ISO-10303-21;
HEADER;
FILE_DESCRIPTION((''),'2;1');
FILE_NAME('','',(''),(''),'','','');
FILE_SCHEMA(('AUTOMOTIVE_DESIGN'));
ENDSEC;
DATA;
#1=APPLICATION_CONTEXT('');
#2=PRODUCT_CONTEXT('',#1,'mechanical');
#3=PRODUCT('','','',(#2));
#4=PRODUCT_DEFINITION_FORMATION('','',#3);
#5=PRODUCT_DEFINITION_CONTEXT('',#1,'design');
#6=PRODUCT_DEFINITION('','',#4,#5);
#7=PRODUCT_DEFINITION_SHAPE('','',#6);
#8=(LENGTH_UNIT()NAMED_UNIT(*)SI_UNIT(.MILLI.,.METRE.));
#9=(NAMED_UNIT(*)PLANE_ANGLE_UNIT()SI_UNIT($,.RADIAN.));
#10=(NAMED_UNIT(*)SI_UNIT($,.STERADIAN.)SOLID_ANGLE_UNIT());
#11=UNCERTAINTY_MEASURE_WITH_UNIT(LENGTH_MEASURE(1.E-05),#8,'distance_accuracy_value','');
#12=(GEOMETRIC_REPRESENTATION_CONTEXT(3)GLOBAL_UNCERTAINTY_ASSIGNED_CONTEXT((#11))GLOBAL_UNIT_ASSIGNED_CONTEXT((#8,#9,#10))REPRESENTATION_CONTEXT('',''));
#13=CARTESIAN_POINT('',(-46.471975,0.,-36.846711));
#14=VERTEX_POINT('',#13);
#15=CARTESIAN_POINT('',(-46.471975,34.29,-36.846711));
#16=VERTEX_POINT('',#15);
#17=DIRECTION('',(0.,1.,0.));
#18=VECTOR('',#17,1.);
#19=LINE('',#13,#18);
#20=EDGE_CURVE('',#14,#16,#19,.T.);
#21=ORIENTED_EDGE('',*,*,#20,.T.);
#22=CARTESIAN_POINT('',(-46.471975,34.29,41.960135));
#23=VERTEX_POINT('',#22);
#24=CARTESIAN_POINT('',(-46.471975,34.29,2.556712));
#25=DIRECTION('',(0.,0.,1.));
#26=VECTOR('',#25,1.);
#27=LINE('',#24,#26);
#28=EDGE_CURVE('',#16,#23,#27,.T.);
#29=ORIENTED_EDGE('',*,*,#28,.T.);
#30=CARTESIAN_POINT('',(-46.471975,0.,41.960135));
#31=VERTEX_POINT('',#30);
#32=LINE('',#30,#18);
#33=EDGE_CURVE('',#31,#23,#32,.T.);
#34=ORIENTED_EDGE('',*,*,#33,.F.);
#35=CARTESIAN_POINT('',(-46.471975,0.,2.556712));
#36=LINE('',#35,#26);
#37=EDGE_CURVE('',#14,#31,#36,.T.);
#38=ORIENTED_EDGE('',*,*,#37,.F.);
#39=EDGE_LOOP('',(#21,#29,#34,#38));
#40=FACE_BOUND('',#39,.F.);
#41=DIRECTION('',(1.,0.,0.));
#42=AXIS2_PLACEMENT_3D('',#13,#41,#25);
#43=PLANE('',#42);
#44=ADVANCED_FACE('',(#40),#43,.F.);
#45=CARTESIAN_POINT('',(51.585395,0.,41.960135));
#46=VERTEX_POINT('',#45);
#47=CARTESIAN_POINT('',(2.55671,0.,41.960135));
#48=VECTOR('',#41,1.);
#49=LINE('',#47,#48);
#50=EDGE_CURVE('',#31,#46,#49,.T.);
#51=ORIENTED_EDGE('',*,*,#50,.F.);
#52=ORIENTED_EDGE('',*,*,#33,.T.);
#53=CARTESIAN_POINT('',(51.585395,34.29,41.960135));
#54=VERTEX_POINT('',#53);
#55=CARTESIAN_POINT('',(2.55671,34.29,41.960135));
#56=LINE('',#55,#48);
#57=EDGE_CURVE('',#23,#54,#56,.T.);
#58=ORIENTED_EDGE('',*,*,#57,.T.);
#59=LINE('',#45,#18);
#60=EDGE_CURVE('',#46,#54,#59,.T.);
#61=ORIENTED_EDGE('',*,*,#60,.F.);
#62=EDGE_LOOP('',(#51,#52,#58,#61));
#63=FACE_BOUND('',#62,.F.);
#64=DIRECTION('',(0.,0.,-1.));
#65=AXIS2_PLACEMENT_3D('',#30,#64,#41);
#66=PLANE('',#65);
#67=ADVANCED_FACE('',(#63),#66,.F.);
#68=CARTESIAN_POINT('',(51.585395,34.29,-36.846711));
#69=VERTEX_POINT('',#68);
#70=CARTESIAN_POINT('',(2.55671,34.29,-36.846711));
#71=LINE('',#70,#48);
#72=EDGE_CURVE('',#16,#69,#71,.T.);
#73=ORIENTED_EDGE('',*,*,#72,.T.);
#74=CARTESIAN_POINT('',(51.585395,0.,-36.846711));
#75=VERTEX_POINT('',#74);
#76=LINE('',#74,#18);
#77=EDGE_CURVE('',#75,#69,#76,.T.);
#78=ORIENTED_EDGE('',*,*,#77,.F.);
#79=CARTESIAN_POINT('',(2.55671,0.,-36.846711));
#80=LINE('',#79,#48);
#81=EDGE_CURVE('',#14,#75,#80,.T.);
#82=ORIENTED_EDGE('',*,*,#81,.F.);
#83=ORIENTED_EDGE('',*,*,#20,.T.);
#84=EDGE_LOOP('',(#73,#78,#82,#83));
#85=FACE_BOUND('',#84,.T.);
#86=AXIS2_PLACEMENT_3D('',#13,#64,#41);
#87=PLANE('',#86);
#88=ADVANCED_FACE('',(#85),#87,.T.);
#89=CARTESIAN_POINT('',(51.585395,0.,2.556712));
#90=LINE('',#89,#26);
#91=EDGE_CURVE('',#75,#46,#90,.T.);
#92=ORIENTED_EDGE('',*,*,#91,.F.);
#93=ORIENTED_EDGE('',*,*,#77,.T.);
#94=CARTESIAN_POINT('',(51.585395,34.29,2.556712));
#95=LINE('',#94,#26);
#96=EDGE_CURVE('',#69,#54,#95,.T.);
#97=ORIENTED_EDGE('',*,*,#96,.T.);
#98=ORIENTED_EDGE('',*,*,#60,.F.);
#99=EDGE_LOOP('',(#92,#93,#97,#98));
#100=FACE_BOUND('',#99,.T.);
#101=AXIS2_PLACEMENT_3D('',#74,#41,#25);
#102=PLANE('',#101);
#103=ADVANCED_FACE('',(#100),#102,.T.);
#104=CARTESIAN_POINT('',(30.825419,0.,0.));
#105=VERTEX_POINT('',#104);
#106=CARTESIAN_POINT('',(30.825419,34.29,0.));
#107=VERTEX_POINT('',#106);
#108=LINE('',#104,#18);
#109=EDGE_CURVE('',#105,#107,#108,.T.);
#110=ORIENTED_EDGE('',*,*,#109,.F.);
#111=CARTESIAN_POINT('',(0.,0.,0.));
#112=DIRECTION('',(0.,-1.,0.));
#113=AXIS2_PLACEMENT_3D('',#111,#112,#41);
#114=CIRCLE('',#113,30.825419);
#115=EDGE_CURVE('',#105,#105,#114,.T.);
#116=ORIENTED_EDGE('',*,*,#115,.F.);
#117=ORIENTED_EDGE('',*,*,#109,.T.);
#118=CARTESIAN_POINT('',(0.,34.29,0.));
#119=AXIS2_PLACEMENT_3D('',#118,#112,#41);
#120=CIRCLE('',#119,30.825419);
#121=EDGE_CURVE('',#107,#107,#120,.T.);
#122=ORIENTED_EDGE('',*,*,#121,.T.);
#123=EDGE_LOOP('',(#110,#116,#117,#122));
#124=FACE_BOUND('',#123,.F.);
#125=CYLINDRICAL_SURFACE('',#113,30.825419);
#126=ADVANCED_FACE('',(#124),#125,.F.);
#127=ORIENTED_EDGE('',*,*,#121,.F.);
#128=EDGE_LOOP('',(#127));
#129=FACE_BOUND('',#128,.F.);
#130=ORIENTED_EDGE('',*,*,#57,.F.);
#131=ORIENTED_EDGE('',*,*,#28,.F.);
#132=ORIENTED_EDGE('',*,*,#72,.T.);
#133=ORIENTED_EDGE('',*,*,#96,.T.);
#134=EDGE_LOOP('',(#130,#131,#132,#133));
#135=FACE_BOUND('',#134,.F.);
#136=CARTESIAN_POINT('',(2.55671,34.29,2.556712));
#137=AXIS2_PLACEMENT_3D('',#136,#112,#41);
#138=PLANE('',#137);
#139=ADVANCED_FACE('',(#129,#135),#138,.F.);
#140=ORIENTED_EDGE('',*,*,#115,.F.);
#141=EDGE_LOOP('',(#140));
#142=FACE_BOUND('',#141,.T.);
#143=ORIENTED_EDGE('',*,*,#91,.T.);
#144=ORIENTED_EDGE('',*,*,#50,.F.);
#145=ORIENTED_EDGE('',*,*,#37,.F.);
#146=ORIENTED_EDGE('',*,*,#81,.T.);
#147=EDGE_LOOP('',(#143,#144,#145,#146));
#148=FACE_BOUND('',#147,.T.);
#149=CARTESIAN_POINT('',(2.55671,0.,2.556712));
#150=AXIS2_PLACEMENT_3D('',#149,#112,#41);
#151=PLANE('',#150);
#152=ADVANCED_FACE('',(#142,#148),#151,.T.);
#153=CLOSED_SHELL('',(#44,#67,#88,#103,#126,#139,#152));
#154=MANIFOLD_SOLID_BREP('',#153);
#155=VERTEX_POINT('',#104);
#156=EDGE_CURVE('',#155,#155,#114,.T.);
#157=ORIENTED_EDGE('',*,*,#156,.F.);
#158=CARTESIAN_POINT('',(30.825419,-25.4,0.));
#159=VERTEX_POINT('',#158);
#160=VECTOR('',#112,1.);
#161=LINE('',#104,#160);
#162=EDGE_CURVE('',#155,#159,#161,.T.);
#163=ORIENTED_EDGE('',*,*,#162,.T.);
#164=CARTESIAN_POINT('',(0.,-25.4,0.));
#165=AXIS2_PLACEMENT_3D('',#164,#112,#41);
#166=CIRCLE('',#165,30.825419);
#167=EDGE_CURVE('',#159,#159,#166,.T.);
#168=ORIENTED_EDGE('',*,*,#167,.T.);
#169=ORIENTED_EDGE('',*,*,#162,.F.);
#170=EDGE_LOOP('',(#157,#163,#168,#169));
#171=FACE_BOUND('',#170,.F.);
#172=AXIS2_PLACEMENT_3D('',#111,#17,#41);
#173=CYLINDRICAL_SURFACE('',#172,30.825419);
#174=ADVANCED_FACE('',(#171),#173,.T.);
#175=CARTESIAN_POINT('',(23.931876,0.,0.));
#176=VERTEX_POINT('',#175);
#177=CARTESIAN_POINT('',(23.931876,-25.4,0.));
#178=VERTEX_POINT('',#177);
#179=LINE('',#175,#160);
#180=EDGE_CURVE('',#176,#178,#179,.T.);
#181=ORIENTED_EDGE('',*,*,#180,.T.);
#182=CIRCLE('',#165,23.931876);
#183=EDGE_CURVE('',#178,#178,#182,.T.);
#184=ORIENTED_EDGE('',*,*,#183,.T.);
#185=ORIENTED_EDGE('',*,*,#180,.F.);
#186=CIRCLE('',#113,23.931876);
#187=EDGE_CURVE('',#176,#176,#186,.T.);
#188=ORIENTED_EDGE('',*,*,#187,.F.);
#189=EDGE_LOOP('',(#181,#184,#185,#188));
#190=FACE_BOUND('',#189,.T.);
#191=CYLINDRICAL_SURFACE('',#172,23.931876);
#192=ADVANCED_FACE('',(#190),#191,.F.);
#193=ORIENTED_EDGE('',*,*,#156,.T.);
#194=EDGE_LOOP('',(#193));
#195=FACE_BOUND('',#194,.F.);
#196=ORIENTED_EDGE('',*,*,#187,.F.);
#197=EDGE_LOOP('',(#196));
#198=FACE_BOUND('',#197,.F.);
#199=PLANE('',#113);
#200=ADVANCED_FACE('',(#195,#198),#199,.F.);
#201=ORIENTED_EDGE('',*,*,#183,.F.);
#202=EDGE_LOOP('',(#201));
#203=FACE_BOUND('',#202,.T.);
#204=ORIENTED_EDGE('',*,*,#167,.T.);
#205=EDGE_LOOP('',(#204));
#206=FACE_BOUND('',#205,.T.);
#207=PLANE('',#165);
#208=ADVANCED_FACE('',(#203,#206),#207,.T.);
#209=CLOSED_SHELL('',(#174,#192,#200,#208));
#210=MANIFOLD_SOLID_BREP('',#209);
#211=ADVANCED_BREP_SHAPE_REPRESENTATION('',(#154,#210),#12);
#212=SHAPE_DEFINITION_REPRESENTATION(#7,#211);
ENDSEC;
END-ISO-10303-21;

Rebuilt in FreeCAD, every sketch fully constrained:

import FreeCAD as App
import Part
import Sketcher

V = App.Vector
Q = App.Units.Quantity


def add_polygon(sketch, points):
    """Adds a closed chain of lines whose ends are joined by coincident constraints."""
    first, n = sketch.GeometryCount, len(points)
    for a, b in zip(points, points[1:] + points[:1]):
        sketch.addGeometry(Part.LineSegment(App.Vector(*a, 0), App.Vector(*b, 0)), False)
    for i in range(n):
        sketch.addConstraint(Sketcher.Constraint("Coincident", first + i, 2, first + (i + 1) % n, 1))

doc = App.newDocument("Part")
params = doc.addObject("Spreadsheet::Sheet", "Params")
for row, (alias, value) in enumerate([
    ("pad1_length", "1 in"),
    ("pad2_length", "1.35 in"),
], start=1):
    params.set(f"A{row}", alias)
    params.set(f"B{row}", "=" + value)
    params.setAlias(f"B{row}", alias)

body = doc.addObject("PartDesign::Body", "Body")

# Sketch on XZ plane
sketch1 = body.newObject("Sketcher::SketchObject", "Sketch")
sketch1.AttachmentSupport = (doc.getObject("XZ_Plane"), [""])
sketch1.MapMode = "FlatFace"
sketch1.addGeometry([
    Part.Circle(V(0, 0, 0), V(0, 0, 1), 30.825419),
    Part.Circle(V(0, 0, 0), V(0, 0, 1), 23.931876),
], False)
sketch1.addConstraint([
    Sketcher.Constraint("Coincident", 0, 3, -1, 1),
    Sketcher.Constraint("Coincident", 1, 3, -1, 1),
    Sketcher.Constraint("Diameter", 1, Q("47.863752 mm")),
    Sketcher.Constraint("Diameter", 0, Q("61.650838 mm")),
])
pad1 = body.newObject("PartDesign::Pad", "Pad")
pad1.Profile = sketch1
pad1.setExpression("Length", "Params.pad1_length")
body2 = doc.addObject("PartDesign::Body", "Body001")

# Sketch on XZ plane
sketch2 = body2.newObject("Sketcher::SketchObject", "Sketch001")
sketch2.AttachmentSupport = (doc.getObject("XZ_Plane001"), [""])
sketch2.MapMode = "FlatFace"
add_polygon(sketch2, [(-46.471975, 41.960135), (-46.471975, -36.846711), (51.585395, -36.846711), (51.585395, 41.960135)])  # lines 0-3
sketch2.addGeometry(Part.Circle(V(0, 0, 0), V(0, 0, 1), 30.825419), False)  # 4
sketch2.addConstraint([
    Sketcher.Constraint("Vertical", 0),
    Sketcher.Constraint("Horizontal", 1),
    Sketcher.Constraint("Vertical", 2),
    Sketcher.Constraint("Horizontal", 3),
    Sketcher.Constraint("Coincident", 4, 3, -1, 1),
    Sketcher.Constraint("Diameter", 4, Q("61.650838 mm")),
    Sketcher.Constraint("DistanceX", 1, 1, 1, 2, Q("98.057371 mm")),
    Sketcher.Constraint("DistanceY", 0, 2, 0, 1, Q("78.806847 mm")),
    Sketcher.Constraint("DistanceY", 0, 2, -1, 1, Q("36.846711 mm")),
    Sketcher.Constraint("DistanceX", 0, 2, -1, 1, Q("46.471975 mm")),
])
pad2 = body2.newObject("PartDesign::Pad", "Pad001")
pad2.Profile = sketch2
pad2.setExpression("Length", "Params.pad2_length")
pad2.Reversed = True

doc.recompute()
